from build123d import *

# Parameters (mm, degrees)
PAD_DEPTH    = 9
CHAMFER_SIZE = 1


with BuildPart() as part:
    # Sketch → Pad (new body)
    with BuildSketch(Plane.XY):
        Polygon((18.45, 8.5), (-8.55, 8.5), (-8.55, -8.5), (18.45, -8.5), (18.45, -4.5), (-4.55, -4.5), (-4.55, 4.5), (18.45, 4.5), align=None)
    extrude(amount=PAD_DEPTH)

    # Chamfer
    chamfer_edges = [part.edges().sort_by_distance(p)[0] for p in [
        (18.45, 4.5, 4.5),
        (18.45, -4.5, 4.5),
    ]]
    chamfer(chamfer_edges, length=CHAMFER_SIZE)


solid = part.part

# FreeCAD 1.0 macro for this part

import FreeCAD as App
import Part
import Sketcher

V = App.Vector
Q = App.Units.Quantity


def edges_at(feature, points):
    """Names of the edges that pass closest to the given points."""
    edges = feature.Shape.Edges
    near = lambda p: min(range(len(edges)), key=lambda i: edges[i].distToShape(Part.Vertex(*p))[0])
    return sorted({f"Edge{near(p) + 1}" for p in points})

doc = App.newDocument("Part")
params = doc.addObject("Spreadsheet::Sheet", "Params")
for row, (alias, value) in enumerate([
    ("sketch1_width", "27 mm"),
    ("sketch1_width2", "23 mm"),
    ("sketch1_height", "17 mm"),
    ("sketch1_height2", "4 mm"),
    ("pad1_length", "9 mm"),
    ("chamfer_size", "1 mm"),
], start=1):
    params.set(f"A{row}", alias)
    params.set(f"B{row}", "=" + value)
    params.setAlias(f"B{row}", alias)

body = doc.addObject("PartDesign::Body", "Body")

# Sketch on XY plane
sketch1 = body.newObject("Sketcher::SketchObject", "Sketch")
sketch1.AttachmentSupport = (doc.getObject("XY_Plane"), [""])
sketch1.MapMode = "FlatFace"
sketch1.addGeometry(Part.LineSegment(V(18.45, 8.5, 0), V(-8.55, 8.5, 0)), False)
sketch1.addGeometry(Part.LineSegment(V(-8.55, 8.5, 0), V(-8.55, -8.5, 0)), False)
sketch1.addGeometry(Part.LineSegment(V(-8.55, -8.5, 0), V(18.45, -8.5, 0)), False)
sketch1.addGeometry(Part.LineSegment(V(18.45, -8.5, 0), V(18.45, -4.5, 0)), False)
sketch1.addGeometry(Part.LineSegment(V(18.45, -4.5, 0), V(-4.55, -4.5, 0)), False)
sketch1.addGeometry(Part.LineSegment(V(-4.55, -4.5, 0), V(-4.55, 4.5, 0)), False)
sketch1.addGeometry(Part.LineSegment(V(-4.55, 4.5, 0), V(18.45, 4.5, 0)), False)
sketch1.addGeometry(Part.LineSegment(V(18.45, 4.5, 0), V(18.45, 8.5, 0)), False)
sketch1.addConstraint(Sketcher.Constraint("Coincident", 0, 2, 1, 1))
sketch1.addConstraint(Sketcher.Constraint("Coincident", 1, 2, 2, 1))
sketch1.addConstraint(Sketcher.Constraint("Coincident", 2, 2, 3, 1))
sketch1.addConstraint(Sketcher.Constraint("Coincident", 3, 2, 4, 1))
sketch1.addConstraint(Sketcher.Constraint("Coincident", 4, 2, 5, 1))
sketch1.addConstraint(Sketcher.Constraint("Coincident", 5, 2, 6, 1))
sketch1.addConstraint(Sketcher.Constraint("Coincident", 6, 2, 7, 1))
sketch1.addConstraint(Sketcher.Constraint("Coincident", 7, 2, 0, 1))
sketch1.addConstraint(Sketcher.Constraint("Horizontal", 0))
sketch1.addConstraint(Sketcher.Constraint("Vertical", 1))
sketch1.addConstraint(Sketcher.Constraint("Horizontal", 2))
sketch1.addConstraint(Sketcher.Constraint("Vertical", 3))
sketch1.addConstraint(Sketcher.Constraint("Horizontal", 4))
sketch1.addConstraint(Sketcher.Constraint("Vertical", 5))
sketch1.addConstraint(Sketcher.Constraint("Horizontal", 6))
sketch1.addConstraint(Sketcher.Constraint("Vertical", 7))
sketch1.addConstraint(Sketcher.Constraint("Symmetric", 3, 2, 6, 2, -1))
sketch1.addConstraint(Sketcher.Constraint("Equal", 3, 7))
sketch1.addConstraint(Sketcher.Constraint("DistanceX", 0, 2, 0, 1, Q("27 mm")))
sketch1.addConstraint(Sketcher.Constraint("DistanceX", 4, 2, 4, 1, Q("23 mm")))
sketch1.addConstraint(Sketcher.Constraint("DistanceY", 1, 2, 1, 1, Q("17 mm")))
sketch1.addConstraint(Sketcher.Constraint("DistanceY", 3, 1, 3, 2, Q("4 mm")))
sketch1.addConstraint(Sketcher.Constraint("DistanceX", 0, 2, -1, 1, Q("8.55 mm")))
sketch1.setExpression("Constraints[18]", "Params.sketch1_width")
sketch1.setExpression("Constraints[19]", "Params.sketch1_width2")
sketch1.setExpression("Constraints[20]", "Params.sketch1_height")
sketch1.setExpression("Constraints[21]", "Params.sketch1_height2")
pad1 = body.newObject("PartDesign::Pad", "Pad")
pad1.Profile = sketch1
pad1.setExpression("Length", "Params.pad1_length")
doc.recompute()

chamfer = body.newObject("PartDesign::Chamfer", "Chamfer")
chamfer.Base = (pad1, edges_at(pad1, [(18.45, 4.5, 4.5), (18.45, -4.5, 4.5)]))
chamfer.setExpression("Size", "Params.chamfer_size")

doc.recompute()
